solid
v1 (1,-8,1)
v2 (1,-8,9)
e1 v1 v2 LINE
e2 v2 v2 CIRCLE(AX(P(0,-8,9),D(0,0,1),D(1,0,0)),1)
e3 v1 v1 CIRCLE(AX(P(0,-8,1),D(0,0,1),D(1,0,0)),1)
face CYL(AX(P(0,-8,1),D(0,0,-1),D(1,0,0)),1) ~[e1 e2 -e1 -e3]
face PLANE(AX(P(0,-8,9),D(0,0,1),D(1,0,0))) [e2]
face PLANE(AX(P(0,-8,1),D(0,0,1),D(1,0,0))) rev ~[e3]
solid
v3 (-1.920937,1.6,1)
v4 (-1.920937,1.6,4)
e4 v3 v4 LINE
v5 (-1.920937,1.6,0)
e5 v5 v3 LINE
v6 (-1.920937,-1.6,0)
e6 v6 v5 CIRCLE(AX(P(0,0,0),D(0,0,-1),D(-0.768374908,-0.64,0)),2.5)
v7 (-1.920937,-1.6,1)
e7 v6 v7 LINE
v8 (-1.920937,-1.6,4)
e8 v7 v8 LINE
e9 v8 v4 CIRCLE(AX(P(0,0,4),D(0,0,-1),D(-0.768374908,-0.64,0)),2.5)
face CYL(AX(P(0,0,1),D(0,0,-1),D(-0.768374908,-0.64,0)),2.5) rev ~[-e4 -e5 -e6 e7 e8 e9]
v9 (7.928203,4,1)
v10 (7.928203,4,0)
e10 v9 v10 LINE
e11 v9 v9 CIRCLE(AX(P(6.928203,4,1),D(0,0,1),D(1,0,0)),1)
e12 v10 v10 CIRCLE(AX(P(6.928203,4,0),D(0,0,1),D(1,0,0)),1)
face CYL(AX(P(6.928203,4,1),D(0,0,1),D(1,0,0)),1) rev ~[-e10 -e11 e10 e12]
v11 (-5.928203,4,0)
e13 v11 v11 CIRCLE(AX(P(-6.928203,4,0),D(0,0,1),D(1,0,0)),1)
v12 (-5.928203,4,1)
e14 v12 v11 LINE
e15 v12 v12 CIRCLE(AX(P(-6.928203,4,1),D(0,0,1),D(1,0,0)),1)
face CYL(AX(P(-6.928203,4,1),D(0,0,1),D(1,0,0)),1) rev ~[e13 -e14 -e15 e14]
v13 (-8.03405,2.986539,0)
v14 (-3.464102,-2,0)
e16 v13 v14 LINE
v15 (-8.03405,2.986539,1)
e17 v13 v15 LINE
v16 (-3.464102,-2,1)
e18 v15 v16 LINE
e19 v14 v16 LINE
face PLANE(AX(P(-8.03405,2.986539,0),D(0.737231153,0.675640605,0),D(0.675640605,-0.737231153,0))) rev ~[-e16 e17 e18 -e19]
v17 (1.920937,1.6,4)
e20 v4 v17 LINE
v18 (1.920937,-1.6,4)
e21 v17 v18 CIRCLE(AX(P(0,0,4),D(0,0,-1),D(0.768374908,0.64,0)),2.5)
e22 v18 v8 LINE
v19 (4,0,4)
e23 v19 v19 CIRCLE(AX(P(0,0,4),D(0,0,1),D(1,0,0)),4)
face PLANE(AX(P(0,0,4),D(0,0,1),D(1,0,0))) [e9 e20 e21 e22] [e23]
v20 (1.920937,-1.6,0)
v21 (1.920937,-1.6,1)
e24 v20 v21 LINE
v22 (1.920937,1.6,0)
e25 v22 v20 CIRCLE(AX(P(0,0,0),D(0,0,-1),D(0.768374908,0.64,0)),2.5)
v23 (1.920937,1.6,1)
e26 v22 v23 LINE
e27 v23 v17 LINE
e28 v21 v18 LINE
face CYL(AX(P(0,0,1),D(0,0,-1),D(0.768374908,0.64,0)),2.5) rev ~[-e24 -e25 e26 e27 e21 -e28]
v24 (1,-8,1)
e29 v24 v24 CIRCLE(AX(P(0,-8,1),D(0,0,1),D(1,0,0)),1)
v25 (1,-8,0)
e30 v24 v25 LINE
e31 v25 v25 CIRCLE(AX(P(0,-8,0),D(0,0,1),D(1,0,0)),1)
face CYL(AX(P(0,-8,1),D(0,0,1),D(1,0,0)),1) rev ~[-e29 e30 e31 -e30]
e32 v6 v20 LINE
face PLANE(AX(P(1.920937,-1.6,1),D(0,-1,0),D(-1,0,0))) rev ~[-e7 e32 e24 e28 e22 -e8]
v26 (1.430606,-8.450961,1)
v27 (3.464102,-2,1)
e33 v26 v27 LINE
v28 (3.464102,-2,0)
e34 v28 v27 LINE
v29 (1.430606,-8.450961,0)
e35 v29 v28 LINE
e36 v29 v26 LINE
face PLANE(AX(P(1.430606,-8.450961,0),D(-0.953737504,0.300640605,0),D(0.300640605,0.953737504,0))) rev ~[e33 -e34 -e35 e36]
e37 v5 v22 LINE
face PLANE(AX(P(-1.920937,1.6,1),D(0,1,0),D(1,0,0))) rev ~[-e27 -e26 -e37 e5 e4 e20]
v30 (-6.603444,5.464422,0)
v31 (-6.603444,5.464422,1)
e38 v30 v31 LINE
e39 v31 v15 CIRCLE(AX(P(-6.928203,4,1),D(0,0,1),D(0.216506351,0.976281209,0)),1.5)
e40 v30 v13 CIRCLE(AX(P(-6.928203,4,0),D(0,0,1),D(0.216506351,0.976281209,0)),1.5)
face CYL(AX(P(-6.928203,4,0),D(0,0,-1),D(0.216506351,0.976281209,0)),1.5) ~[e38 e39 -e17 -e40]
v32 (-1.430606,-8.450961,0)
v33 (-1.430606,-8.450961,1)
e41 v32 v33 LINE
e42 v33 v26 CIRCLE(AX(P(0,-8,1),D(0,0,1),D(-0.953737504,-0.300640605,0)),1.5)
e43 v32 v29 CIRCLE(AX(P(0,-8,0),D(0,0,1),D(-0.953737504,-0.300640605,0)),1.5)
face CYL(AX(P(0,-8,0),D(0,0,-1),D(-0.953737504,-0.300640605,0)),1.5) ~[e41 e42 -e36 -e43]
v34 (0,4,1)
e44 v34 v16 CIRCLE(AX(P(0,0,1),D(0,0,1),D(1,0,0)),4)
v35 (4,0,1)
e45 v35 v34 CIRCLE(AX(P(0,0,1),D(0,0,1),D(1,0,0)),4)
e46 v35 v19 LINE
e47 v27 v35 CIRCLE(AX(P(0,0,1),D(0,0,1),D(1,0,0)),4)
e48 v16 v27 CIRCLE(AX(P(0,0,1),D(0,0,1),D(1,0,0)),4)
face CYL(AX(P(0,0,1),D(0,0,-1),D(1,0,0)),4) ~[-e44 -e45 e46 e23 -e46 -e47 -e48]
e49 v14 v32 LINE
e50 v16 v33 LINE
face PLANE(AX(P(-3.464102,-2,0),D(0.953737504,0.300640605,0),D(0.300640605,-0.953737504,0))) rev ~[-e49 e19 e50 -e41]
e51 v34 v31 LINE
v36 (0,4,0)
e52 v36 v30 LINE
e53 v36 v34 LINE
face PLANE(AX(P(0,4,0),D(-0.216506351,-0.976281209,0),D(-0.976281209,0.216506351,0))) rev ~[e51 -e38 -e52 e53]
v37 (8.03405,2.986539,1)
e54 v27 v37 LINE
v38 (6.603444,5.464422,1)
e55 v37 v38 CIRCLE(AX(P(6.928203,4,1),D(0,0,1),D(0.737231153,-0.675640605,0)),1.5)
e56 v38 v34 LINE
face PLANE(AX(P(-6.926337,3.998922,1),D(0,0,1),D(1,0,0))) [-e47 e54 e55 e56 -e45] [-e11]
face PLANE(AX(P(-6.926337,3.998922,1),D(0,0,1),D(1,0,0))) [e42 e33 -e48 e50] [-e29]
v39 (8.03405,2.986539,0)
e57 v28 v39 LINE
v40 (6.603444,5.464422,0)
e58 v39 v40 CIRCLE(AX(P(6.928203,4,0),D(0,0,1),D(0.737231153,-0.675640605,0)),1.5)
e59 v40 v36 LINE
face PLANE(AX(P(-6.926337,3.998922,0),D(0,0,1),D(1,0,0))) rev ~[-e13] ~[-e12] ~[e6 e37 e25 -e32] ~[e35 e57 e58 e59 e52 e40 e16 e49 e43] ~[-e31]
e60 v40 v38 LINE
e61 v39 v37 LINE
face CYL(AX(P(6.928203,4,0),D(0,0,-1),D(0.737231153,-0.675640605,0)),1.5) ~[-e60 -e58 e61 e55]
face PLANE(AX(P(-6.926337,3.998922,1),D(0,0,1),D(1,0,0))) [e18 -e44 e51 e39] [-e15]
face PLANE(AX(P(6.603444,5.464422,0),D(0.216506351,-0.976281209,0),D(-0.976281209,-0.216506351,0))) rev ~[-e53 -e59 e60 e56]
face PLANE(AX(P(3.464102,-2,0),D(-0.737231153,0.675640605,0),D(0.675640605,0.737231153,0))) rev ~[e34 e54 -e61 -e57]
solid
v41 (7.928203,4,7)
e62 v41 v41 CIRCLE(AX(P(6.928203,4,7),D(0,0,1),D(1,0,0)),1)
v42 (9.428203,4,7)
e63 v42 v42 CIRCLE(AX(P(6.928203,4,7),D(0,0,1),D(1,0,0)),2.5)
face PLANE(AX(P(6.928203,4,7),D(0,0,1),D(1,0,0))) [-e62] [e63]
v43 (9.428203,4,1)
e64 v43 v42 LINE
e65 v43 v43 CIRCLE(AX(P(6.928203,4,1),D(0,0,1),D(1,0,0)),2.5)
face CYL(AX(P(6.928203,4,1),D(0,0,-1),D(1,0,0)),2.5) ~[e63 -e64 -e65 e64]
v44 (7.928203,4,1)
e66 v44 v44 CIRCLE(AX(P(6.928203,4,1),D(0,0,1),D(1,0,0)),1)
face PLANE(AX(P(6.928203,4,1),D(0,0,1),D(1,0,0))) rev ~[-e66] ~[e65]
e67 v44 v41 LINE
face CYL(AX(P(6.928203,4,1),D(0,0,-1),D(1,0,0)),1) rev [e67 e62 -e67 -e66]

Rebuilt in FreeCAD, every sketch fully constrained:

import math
import FreeCAD as App
import Part
import Sketcher
from FreeCAD import Vector

doc = App.newDocument("Part")
body = doc.addObject("PartDesign::Body", "Body")

sketch1 = body.newObject("Sketcher::SketchObject", "Sketch")
sketch1.AttachmentSupport = (doc.getObject("XY_Plane"), [""])
sketch1.MapMode = "FlatFace"
sketch1.addGeometry([
    Part.ArcOfCircle(Part.Circle(Vector(-6.928203, 4, 0), Vector(0, 0, 1), 1.5), math.radians(77.496083), math.radians(222.503917)),
    Part.LineSegment(Vector(-8.03405, 2.986539, 0), Vector(-3.464102, -2, 0)),
    Part.LineSegment(Vector(-3.464102, -2, 0), Vector(-1.430606, -8.450961, 0)),
    Part.ArcOfCircle(Part.Circle(Vector(0, -8, 0), Vector(0, 0, 1), 1.5), math.radians(-162.503917), math.radians(-17.496083)),
    Part.LineSegment(Vector(1.430606, -8.450961, 0), Vector(3.464102, -2, 0)),
    Part.LineSegment(Vector(3.464102, -2, 0), Vector(8.03405, 2.986539, 0)),
    Part.ArcOfCircle(Part.Circle(Vector(6.928203, 4, 0), Vector(0, 0, 1), 1.5), math.radians(-42.503917), math.radians(102.503917)),
    Part.LineSegment(Vector(6.603444, 5.464422, 0), Vector(0, 4, 0)),
    Part.LineSegment(Vector(0, 4, 0), Vector(-6.603444, 5.464422, 0)),
], False)
sketch1.addConstraint([
    Sketcher.Constraint("Tangent", 0, 2, 1, 1),
    Sketcher.Constraint("Coincident", 1, 2, 2, 1),
    Sketcher.Constraint("Tangent", 2, 2, 3, 1),
    Sketcher.Constraint("Tangent", 3, 2, 4, 1),
    Sketcher.Constraint("Coincident", 4, 2, 5, 1),
    Sketcher.Constraint("Tangent", 5, 2, 6, 1),
    Sketcher.Constraint("Tangent", 6, 2, 7, 1),
    Sketcher.Constraint("Coincident", 7, 2, 8, 1),
    Sketcher.Constraint("Tangent", 8, 2, 0, 1),
    Sketcher.Constraint("Equal", 0, 3),
    Sketcher.Constraint("Equal", 3, 6),
    Sketcher.Constraint("Symmetric", 0, 3, 6, 3, -2),
    Sketcher.Constraint("Symmetric", 2, 2, 3, 2, -2),
    Sketcher.Constraint("PointOnObject", 7, 2, -2),
    Sketcher.Constraint("Horizontal", 1, 2, 4, 2),
    Sketcher.Constraint("Horizontal", 6, 3, 7, 2),
    Sketcher.Constraint("Equal", 1, 2),
    Sketcher.Constraint("Equal", 5, 7),
    Sketcher.Constraint("Radius", 0, 1.5),
    Sketcher.Constraint("DistanceY", -1, 1, 0, 3, 4.0),
    Sketcher.Constraint("DistanceY", 3, 3, -1, 1, 8.0),
    Sketcher.Constraint("DistanceY", 1, 2, -1, 1, 2.0),
])
pad1 = body.newObject("PartDesign::Pad", "Pad")
pad1.Profile = sketch1
pad1.Length = 1

sketch2 = body.newObject("Sketcher::SketchObject", "Sketch001")
sketch2.AttachmentSupport = (doc.getObject("XY_Plane"), [""])
sketch2.MapMode = "FlatFace"
sketch2.addGeometry([
    Part.ArcOfCircle(Part.Circle(Vector(0, 0, 0), Vector(0, 0, 1), 2.5), math.radians(140.20818), math.radians(219.79182)),
    Part.LineSegment(Vector(-1.920937, 1.6, 0), Vector(1.920937, 1.6, 0)),
    Part.ArcOfCircle(Part.Circle(Vector(0, 0, 0), Vector(0, 0, 1), 2.5), math.radians(-39.79182), math.radians(39.79182)),
    Part.LineSegment(Vector(1.920937, -1.6, 0), Vector(-1.920937, -1.6, 0)),
], False)
sketch2.addConstraint([
    Sketcher.Constraint("Coincident", 0, 1, 1, 1),
    Sketcher.Constraint("Coincident", 1, 2, 2, 2),
    Sketcher.Constraint("Coincident", 2, 1, 3, 1),
    Sketcher.Constraint("Coincident", 3, 2, 0, 2),
    Sketcher.Constraint("Horizontal", 1),
    Sketcher.Constraint("Horizontal", 3),
    Sketcher.Constraint("Coincident", 0, 3, -1, 1),
    Sketcher.Constraint("Coincident", 2, 3, -1, 1),
    Sketcher.Constraint("Equal", 0, 2),
    Sketcher.Constraint("Vertical", 1, 2, 2, 1),
    Sketcher.Constraint("Radius", 0, 2.5),
    Sketcher.Constraint("DistanceY", -1, 1, 0, 1, 1.6),
])
pocket1 = body.newObject("PartDesign::Pocket", "Pocket")
pocket1.Profile = sketch2
pocket1.Type = "ThroughAll"
pocket1.Reversed = True

sketch3 = body.newObject("Sketcher::SketchObject", "Sketch002")
sketch3.AttachmentSupport = (doc.getObject("XY_Plane"), [""])
sketch3.MapMode = "FlatFace"
sketch3.AttachmentOffset = App.Placement(Vector(0, 0, 1), App.Rotation())
sketch3.addGeometry([
    Part.Circle(Vector(0, 0, 0), Vector(0, 0, 1), 4),
    Part.ArcOfCircle(Part.Circle(Vector(0, 0, 0), Vector(0, 0, 1), 2.5), math.radians(140.20818), math.radians(219.79182)),
    Part.LineSegment(Vector(-1.920937, 1.6, 0), Vector(1.920937, 1.6, 0)),
    Part.ArcOfCircle(Part.Circle(Vector(0, 0, 0), Vector(0, 0, 1), 2.5), math.radians(-39.79182), math.radians(39.79182)),
    Part.LineSegment(Vector(1.920937, -1.6, 0), Vector(-1.920937, -1.6, 0)),
], False)
sketch3.addConstraint([
    Sketcher.Constraint("Coincident", 1, 1, 2, 1),
    Sketcher.Constraint("Coincident", 2, 2, 3, 2),
    Sketcher.Constraint("Coincident", 3, 1, 4, 1),
    Sketcher.Constraint("Coincident", 4, 2, 1, 2),
    Sketcher.Constraint("Horizontal", 2),
    Sketcher.Constraint("Horizontal", 4),
    Sketcher.Constraint("Coincident", 0, 3, -1, 1),
    Sketcher.Constraint("Coincident", 1, 3, -1, 1),
    Sketcher.Constraint("Coincident", 3, 3, -1, 1),
    Sketcher.Constraint("Equal", 1, 3),
    Sketcher.Constraint("Vertical", 2, 2, 3, 1),
    Sketcher.Constraint("Diameter", 0, 8.0),
    Sketcher.Constraint("Radius", 1, 2.5),
    Sketcher.Constraint("DistanceY", -1, 1, 1, 1, 1.6),
])
pad2 = body.newObject("PartDesign::Pad", "Pad001")
pad2.Profile = sketch3
pad2.Length = 3

sketch4 = body.newObject("Sketcher::SketchObject", "Sketch003")
sketch4.AttachmentSupport = (doc.getObject("XY_Plane"), [""])
sketch4.MapMode = "FlatFace"
sketch4.AttachmentOffset = App.Placement(Vector(0, 0, 1), App.Rotation())
sketch4.addGeometry([
    Part.Circle(Vector(-6.928203, 4, 0), Vector(0, 0, 1), 1),
    Part.Circle(Vector(0, -8, 0), Vector(0, 0, 1), 1),
    Part.Circle(Vector(6.928203, 4, 0), Vector(0, 0, 1), 1),
], False)
sketch4.addConstraint([
    Sketcher.Constraint("Equal", 0, 1),
    Sketcher.Constraint("Equal", 1, 2),
    Sketcher.Constraint("Symmetric", 0, 3, 2, 3, -2),
    Sketcher.Constraint("PointOnObject", 1, 3, -2),
    Sketcher.Constraint("Diameter", 0, 2.0),
    Sketcher.Constraint("DistanceY", -1, 1, 0, 3, 4.0),
    Sketcher.Constraint("DistanceY", 1, 3, -1, 1, 8.0),
    Sketcher.Constraint("DistanceX", 0, 3, -1, 1, 6.928203),
])
pocket2 = body.newObject("PartDesign::Pocket", "Pocket001")
pocket2.Profile = sketch4
pocket2.Type = "ThroughAll"
body2 = doc.addObject("PartDesign::Body", "Body001")

sketch5 = body2.newObject("Sketcher::SketchObject", "Sketch004")
sketch5.AttachmentSupport = (doc.getObject("XY_Plane001"), [""])
sketch5.MapMode = "FlatFace"
sketch5.AttachmentOffset = App.Placement(Vector(0, 0, 1), App.Rotation())
sketch5.addGeometry(Part.Circle(Vector(0, -8, 0), Vector(0, 0, 1), 1), False)
sketch5.addConstraint([
    Sketcher.Constraint("PointOnObject", 0, 3, -2),
    Sketcher.Constraint("Diameter", 0, 2.0),
    Sketcher.Constraint("DistanceY", 0, 3, -1, 1, 8.0),
])
pad3 = body2.newObject("PartDesign::Pad", "Pad002")
pad3.Profile = sketch5
pad3.Length = 8
body3 = doc.addObject("PartDesign::Body", "Body002")

sketch6 = body3.newObject("Sketcher::SketchObject", "Sketch005")
sketch6.AttachmentSupport = (doc.getObject("XY_Plane002"), [""])
sketch6.MapMode = "FlatFace"
sketch6.AttachmentOffset = App.Placement(Vector(0, 0, 1), App.Rotation())
sketch6.addGeometry([
    Part.Circle(Vector(6.928203, 4, 0), Vector(0, 0, 1), 2.5),
    Part.Circle(Vector(6.928203, 4, 0), Vector(0, 0, 1), 1),
], False)
sketch6.addConstraint([
    Sketcher.Constraint("Coincident", 1, 3, 0, 3),
    Sketcher.Constraint("Diameter", 0, 5.0),
    Sketcher.Constraint("Diameter", 1, 2.0),
    Sketcher.Constraint("DistanceY", -1, 1, 0, 3, 4.0),
    Sketcher.Constraint("DistanceX", -1, 1, 0, 3, 6.928203),
])
pad4 = body3.newObject("PartDesign::Pad", "Pad003")
pad4.Profile = sketch6
pad4.Length = 6

doc.recompute()
